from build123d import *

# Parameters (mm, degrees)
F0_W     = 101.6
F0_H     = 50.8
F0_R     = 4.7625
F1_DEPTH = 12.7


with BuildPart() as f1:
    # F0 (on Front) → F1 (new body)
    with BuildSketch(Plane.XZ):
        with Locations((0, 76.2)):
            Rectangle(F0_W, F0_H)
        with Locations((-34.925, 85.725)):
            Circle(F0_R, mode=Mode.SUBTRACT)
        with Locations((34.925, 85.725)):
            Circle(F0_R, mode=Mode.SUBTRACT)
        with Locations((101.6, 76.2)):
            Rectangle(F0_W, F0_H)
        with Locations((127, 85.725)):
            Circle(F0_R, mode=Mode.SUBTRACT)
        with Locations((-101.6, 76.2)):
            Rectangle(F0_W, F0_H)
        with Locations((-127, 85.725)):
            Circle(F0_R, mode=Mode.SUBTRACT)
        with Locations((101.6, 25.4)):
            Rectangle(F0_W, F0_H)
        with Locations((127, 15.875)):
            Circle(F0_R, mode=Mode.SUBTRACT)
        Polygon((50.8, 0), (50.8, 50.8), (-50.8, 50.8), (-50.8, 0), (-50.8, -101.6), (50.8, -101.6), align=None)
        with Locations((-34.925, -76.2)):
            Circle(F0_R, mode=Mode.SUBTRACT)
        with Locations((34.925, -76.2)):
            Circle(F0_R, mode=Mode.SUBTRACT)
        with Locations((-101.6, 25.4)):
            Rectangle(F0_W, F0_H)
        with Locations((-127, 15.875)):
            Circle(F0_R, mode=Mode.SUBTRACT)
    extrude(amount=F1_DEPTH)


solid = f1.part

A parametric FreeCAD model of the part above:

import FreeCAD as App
import Part
import Sketcher
Q = App.Units.Quantity


def add_polygon(sketch, points):
    """Adds a closed chain of lines whose ends are joined by coincident constraints."""
    first, n = sketch.GeometryCount, len(points)
    for a, b in zip(points, points[1:] + points[:1]):
        sketch.addGeometry(Part.LineSegment(App.Vector(*a, 0), App.Vector(*b, 0)), False)
    for i in range(n):
        sketch.addConstraint(Sketcher.Constraint("Coincident", first + i, 2, first + (i + 1) % n, 1))

doc = App.newDocument("Part")
body = doc.addObject("PartDesign::Body", "Body")

sketch1 = body.newObject("Sketcher::SketchObject", "Sketch")
sketch1.AttachmentSupport = (doc.getObject("XZ_Plane"), [""])
sketch1.MapMode = "FlatFace"
add_polygon(sketch1, [(152.4, 101.6), (-152.4, 101.6), (-152.4, 0), (-50.8, 0), (-50.8, -101.6), (50.8, -101.6), (50.8, 0), (152.4, 0)])
sketch1.addGeometry(Part.Circle(App.Vector(-34.9, -76.2, 0), App.Vector(0, 0, 1), 4.8), False)
sketch1.addGeometry(Part.Circle(App.Vector(34.9, -76.2, 0), App.Vector(0, 0, 1), 4.8), False)
sketch1.addGeometry(Part.Circle(App.Vector(-127, 15.9, 0), App.Vector(0, 0, 1), 4.8), False)
sketch1.addGeometry(Part.Circle(App.Vector(-127, 85.7, 0), App.Vector(0, 0, 1), 4.8), False)
sketch1.addGeometry(Part.Circle(App.Vector(-34.9, 85.7, 0), App.Vector(0, 0, 1), 4.8), False)
sketch1.addGeometry(Part.Circle(App.Vector(127, 15.9, 0), App.Vector(0, 0, 1), 4.8), False)
sketch1.addGeometry(Part.Circle(App.Vector(34.9, 85.7, 0), App.Vector(0, 0, 1), 4.8), False)
sketch1.addGeometry(Part.Circle(App.Vector(127, 85.7, 0), App.Vector(0, 0, 1), 4.8), False)
sketch1.addConstraint([
    Sketcher.Constraint("Horizontal", 0),
    Sketcher.Constraint("Vertical", 1),
    Sketcher.Constraint("Horizontal", 2),
    Sketcher.Constraint("Vertical", 3),
    Sketcher.Constraint("Horizontal", 4),
    Sketcher.Constraint("Vertical", 5),
    Sketcher.Constraint("Horizontal", 6),
    Sketcher.Constraint("Vertical", 7),
    Sketcher.Constraint("Equal", 8, 9),
    Sketcher.Constraint("Equal", 9, 10),
    Sketcher.Constraint("Equal", 10, 11),
    Sketcher.Constraint("Equal", 11, 12),
    Sketcher.Constraint("Equal", 12, 13),
    Sketcher.Constraint("Equal", 13, 14),
    Sketcher.Constraint("Equal", 14, 15),
    Sketcher.Constraint("Symmetric", 2, 2, 5, 2, -1, 1),
    Sketcher.Constraint("Symmetric", 8, 3, 9, 3, -2),
    Sketcher.Constraint("Symmetric", 10, 3, 13, 3, -2),
    Sketcher.Constraint("Symmetric", 12, 3, 14, 3, -2),
    Sketcher.Constraint("Symmetric", 11, 3, 15, 3, -2),
    Sketcher.Constraint("Symmetric", 1, 2, 6, 2, -2),
    Sketcher.Constraint("Horizontal", 11, 3, 12, 3),
    Sketcher.Constraint("Vertical", 10, 3, 11, 3),
    Sketcher.Constraint("Vertical", 8, 3, 12, 3),
    Sketcher.Constraint("Equal", 2, 4),
    Sketcher.Constraint("Equal", 6, 1),
    Sketcher.Constraint("Equal", 1, 3),
    Sketcher.Constraint("DistanceX", 0, 2, 0, 1, Q("12 in")),
    Sketcher.Constraint("Diameter", 8, Q("0.375 in")),
    Sketcher.Constraint("DistanceY", 8, 3, -1, 1, Q("3 in")),
    Sketcher.Constraint("DistanceX", 10, 3, -1, 1, Q("5 in")),
    Sketcher.Constraint("DistanceX", 8, 3, 9, 3, Q("2.75 in")),
    Sketcher.Constraint("DistanceY", 10, 3, 11, 3, Q("2.75 in")),
    Sketcher.Constraint("DistanceY", -1, 1, 10, 3, Q("0.625 in")),
])
pad1 = body.newObject("PartDesign::Pad", "Pad")
pad1.Profile = sketch1
pad1.Length = Q("0.5 in")

doc.recompute()
